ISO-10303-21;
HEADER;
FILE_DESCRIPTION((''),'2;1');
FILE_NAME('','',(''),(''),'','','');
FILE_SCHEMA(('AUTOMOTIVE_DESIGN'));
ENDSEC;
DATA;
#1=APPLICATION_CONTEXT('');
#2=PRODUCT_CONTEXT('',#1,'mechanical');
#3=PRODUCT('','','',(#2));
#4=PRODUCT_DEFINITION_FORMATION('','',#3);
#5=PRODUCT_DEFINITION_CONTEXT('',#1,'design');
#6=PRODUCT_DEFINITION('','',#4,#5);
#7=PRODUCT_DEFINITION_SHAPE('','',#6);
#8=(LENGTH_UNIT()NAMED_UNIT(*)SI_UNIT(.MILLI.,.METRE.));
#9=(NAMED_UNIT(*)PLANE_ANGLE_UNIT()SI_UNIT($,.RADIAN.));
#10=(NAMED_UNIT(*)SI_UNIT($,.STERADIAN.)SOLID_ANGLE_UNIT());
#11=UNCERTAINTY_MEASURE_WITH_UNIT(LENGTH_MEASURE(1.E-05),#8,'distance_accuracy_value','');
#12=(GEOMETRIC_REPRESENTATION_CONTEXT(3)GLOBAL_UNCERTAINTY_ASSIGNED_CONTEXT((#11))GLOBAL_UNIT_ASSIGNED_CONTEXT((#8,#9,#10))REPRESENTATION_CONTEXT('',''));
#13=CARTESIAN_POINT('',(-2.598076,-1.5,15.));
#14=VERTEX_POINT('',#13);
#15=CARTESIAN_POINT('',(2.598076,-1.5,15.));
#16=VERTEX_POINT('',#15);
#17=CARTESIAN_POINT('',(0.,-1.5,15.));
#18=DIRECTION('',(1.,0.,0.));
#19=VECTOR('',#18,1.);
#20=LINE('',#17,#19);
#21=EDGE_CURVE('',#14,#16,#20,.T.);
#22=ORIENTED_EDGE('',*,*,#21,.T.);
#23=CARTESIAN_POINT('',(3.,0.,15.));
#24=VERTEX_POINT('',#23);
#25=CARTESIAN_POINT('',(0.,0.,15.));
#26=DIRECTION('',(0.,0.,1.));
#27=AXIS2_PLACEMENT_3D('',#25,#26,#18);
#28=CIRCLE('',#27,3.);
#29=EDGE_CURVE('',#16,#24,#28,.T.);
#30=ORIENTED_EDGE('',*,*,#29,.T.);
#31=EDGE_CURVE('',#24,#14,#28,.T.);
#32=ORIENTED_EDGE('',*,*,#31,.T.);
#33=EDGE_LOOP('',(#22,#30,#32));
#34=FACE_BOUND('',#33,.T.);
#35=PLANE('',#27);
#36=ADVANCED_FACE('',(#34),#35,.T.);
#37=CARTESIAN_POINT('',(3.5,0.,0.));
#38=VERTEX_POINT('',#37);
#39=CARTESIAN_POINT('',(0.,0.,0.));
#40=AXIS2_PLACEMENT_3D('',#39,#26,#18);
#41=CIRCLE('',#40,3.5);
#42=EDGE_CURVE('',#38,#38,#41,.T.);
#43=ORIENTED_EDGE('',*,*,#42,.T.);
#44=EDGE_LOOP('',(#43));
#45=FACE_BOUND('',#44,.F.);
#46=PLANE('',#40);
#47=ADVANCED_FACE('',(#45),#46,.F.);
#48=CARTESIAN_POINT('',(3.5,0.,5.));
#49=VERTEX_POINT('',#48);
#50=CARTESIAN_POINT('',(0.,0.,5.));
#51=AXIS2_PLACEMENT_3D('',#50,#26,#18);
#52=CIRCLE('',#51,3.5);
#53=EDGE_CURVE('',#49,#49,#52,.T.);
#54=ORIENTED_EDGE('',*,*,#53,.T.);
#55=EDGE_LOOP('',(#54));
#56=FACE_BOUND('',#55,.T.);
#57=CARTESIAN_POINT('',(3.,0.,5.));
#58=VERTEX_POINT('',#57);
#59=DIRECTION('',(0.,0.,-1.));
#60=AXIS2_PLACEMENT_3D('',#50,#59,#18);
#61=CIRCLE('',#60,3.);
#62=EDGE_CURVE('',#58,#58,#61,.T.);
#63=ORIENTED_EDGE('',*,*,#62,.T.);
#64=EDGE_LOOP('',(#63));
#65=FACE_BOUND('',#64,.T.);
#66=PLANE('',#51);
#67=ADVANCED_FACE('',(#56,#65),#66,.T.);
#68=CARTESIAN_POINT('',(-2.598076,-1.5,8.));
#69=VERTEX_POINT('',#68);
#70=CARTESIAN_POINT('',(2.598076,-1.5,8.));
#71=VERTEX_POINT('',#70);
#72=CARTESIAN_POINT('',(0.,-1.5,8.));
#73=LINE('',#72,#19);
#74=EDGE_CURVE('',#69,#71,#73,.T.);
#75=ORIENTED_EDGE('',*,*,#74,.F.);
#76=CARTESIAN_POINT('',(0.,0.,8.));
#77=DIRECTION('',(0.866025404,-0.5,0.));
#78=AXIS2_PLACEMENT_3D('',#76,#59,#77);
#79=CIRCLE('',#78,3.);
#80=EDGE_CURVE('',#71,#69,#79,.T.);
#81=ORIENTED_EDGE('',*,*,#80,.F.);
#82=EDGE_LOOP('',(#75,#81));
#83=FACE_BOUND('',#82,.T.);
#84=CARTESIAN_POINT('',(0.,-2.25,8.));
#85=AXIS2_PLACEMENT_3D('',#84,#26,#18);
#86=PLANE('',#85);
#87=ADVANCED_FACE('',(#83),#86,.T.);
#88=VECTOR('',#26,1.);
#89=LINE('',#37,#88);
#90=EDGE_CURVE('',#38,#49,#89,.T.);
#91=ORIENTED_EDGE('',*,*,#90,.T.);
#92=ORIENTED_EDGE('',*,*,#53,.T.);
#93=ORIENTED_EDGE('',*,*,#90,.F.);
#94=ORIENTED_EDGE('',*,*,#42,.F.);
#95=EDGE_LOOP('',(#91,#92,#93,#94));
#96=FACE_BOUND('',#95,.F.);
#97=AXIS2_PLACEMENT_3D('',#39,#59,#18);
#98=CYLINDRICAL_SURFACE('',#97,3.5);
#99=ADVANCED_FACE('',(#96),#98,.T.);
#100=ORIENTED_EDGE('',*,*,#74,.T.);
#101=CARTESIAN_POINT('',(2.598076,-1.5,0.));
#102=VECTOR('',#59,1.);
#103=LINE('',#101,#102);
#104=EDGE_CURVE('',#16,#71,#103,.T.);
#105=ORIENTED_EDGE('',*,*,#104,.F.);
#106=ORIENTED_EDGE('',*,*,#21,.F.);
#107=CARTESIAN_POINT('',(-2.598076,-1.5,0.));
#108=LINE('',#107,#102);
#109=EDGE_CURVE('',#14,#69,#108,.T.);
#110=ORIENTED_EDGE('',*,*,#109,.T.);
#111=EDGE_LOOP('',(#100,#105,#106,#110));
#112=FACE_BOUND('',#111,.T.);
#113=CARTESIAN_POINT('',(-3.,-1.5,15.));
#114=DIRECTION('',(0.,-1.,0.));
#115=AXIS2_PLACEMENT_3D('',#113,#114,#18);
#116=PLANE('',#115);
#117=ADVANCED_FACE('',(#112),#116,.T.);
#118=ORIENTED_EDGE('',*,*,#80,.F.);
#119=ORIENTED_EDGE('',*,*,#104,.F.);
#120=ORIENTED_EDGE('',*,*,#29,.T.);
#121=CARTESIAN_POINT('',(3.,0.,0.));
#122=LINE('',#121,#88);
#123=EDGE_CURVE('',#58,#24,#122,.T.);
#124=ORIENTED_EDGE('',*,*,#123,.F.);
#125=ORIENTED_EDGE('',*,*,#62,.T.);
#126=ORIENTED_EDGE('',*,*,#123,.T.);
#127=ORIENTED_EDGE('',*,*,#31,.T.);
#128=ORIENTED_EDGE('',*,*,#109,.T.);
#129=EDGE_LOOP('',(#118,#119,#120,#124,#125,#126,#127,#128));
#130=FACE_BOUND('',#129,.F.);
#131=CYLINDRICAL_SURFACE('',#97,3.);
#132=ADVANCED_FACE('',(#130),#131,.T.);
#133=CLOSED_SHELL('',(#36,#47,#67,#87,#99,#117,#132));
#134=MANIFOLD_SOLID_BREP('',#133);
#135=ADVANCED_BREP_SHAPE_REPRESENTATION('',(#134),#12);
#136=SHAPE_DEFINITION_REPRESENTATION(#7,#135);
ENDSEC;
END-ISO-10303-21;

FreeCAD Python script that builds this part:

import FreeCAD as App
import Part
import Sketcher


def add_polygon(sketch, points):
    """Adds a closed chain of lines whose ends are joined by coincident constraints."""
    first, n = sketch.GeometryCount, len(points)
    for a, b in zip(points, points[1:] + points[:1]):
        sketch.addGeometry(Part.LineSegment(App.Vector(*a, 0), App.Vector(*b, 0)), False)
    for i in range(n):
        sketch.addConstraint(Sketcher.Constraint("Coincident", first + i, 2, first + (i + 1) % n, 1))

doc = App.newDocument("Part")
body = doc.addObject("PartDesign::Body", "Body")

sketch1 = body.newObject("Sketcher::SketchObject", "Sketch")
sketch1.AttachmentSupport = (doc.getObject("XY_Plane"), [""])
sketch1.MapMode = "FlatFace"
sketch1.addGeometry(Part.Circle(App.Vector(0, 0, 0), App.Vector(0, 0, 1), 3.5), False)
sketch1.addConstraint(Sketcher.Constraint("Coincident", 0, 3, -1, 1))
sketch1.addConstraint(Sketcher.Constraint("Diameter", 0, 7.0))
pad1 = body.newObject("PartDesign::Pad", "Pad")
pad1.Profile = sketch1
pad1.Length = 5

sketch2 = body.newObject("Sketcher::SketchObject", "Sketch001")
sketch2.AttachmentSupport = (doc.getObject("XY_Plane"), [""])
sketch2.MapMode = "FlatFace"
sketch2.addGeometry(Part.Circle(App.Vector(0, 0, 0), App.Vector(0, 0, 1), 3), False)
sketch2.addConstraint(Sketcher.Constraint("Coincident", 0, 3, -1, 1))
sketch2.addConstraint(Sketcher.Constraint("Diameter", 0, 6.0))
pad2 = body.newObject("PartDesign::Pad", "Pad001")
pad2.Profile = sketch2
pad2.Length = 15

sketch3 = body.newObject("Sketcher::SketchObject", "Sketch002")
sketch3.AttachmentSupport = (doc.getObject("XY_Plane"), [""])
sketch3.MapMode = "FlatFace"
sketch3.AttachmentOffset = App.Placement(App.Vector(0, 0, 15), App.Rotation())
add_polygon(sketch3, [(-3, -1.5), (-3, -3), (3, -3), (3, -1.5)])
sketch3.addConstraint(Sketcher.Constraint("Vertical", 0))
sketch3.addConstraint(Sketcher.Constraint("Horizontal", 1))
sketch3.addConstraint(Sketcher.Constraint("Vertical", 2))
sketch3.addConstraint(Sketcher.Constraint("Horizontal", 3))
sketch3.addConstraint(Sketcher.Constraint("DistanceX", 1, 1, 1, 2, 6.0))
sketch3.addConstraint(Sketcher.Constraint("DistanceY", 0, 2, 0, 1, 1.5))
sketch3.addConstraint(Sketcher.Constraint("DistanceX", 0, 2, -1, 1, 3.0))
sketch3.addConstraint(Sketcher.Constraint("DistanceY", 0, 2, -1, 1, 3.0))
pocket1 = body.newObject("PartDesign::Pocket", "Pocket")
pocket1.Profile = sketch3
pocket1.Length = 7

doc.recompute()
